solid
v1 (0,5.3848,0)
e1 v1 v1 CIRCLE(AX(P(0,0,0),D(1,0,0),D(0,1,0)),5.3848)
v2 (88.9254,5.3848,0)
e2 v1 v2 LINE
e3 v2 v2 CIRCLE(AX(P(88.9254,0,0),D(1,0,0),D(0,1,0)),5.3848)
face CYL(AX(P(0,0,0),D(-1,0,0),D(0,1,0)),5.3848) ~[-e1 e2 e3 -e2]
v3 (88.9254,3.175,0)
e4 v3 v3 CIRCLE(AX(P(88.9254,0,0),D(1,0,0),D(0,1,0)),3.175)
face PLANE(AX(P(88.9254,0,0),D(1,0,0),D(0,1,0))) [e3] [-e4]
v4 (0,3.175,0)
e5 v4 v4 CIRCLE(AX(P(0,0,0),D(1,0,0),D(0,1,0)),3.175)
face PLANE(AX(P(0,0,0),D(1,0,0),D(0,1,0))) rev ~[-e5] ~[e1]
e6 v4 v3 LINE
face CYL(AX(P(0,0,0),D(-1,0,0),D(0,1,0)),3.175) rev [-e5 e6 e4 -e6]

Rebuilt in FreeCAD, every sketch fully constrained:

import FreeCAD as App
import Part
import Sketcher
from FreeCAD import Vector
Q = App.Units.Quantity

doc = App.newDocument("Part")
body = doc.addObject("PartDesign::Body", "Body")

sketch1 = body.newObject("Sketcher::SketchObject", "Sketch")
sketch1.AttachmentSupport = (doc.getObject("YZ_Plane"), [""])
sketch1.MapMode = "FlatFace"
sketch1.addGeometry([
    Part.Circle(Vector(0, 0, 0), Vector(0, 0, 1), 5.4),
    Part.Circle(Vector(0, 0, 0), Vector(0, 0, 1), 3.2),
], False)
sketch1.addConstraint([
    Sketcher.Constraint("Coincident", 0, 3, -1, 1),
    Sketcher.Constraint("Coincident", 1, 3, -1, 1),
    Sketcher.Constraint("Diameter", 1, Q("0.25 in")),
    Sketcher.Constraint("Diameter", 0, Q("0.424 in")),
])
pad1 = body.newObject("PartDesign::Pad", "Pad")
pad1.Profile = sketch1
pad1.Length = Q("3.501 in")

doc.recompute()
